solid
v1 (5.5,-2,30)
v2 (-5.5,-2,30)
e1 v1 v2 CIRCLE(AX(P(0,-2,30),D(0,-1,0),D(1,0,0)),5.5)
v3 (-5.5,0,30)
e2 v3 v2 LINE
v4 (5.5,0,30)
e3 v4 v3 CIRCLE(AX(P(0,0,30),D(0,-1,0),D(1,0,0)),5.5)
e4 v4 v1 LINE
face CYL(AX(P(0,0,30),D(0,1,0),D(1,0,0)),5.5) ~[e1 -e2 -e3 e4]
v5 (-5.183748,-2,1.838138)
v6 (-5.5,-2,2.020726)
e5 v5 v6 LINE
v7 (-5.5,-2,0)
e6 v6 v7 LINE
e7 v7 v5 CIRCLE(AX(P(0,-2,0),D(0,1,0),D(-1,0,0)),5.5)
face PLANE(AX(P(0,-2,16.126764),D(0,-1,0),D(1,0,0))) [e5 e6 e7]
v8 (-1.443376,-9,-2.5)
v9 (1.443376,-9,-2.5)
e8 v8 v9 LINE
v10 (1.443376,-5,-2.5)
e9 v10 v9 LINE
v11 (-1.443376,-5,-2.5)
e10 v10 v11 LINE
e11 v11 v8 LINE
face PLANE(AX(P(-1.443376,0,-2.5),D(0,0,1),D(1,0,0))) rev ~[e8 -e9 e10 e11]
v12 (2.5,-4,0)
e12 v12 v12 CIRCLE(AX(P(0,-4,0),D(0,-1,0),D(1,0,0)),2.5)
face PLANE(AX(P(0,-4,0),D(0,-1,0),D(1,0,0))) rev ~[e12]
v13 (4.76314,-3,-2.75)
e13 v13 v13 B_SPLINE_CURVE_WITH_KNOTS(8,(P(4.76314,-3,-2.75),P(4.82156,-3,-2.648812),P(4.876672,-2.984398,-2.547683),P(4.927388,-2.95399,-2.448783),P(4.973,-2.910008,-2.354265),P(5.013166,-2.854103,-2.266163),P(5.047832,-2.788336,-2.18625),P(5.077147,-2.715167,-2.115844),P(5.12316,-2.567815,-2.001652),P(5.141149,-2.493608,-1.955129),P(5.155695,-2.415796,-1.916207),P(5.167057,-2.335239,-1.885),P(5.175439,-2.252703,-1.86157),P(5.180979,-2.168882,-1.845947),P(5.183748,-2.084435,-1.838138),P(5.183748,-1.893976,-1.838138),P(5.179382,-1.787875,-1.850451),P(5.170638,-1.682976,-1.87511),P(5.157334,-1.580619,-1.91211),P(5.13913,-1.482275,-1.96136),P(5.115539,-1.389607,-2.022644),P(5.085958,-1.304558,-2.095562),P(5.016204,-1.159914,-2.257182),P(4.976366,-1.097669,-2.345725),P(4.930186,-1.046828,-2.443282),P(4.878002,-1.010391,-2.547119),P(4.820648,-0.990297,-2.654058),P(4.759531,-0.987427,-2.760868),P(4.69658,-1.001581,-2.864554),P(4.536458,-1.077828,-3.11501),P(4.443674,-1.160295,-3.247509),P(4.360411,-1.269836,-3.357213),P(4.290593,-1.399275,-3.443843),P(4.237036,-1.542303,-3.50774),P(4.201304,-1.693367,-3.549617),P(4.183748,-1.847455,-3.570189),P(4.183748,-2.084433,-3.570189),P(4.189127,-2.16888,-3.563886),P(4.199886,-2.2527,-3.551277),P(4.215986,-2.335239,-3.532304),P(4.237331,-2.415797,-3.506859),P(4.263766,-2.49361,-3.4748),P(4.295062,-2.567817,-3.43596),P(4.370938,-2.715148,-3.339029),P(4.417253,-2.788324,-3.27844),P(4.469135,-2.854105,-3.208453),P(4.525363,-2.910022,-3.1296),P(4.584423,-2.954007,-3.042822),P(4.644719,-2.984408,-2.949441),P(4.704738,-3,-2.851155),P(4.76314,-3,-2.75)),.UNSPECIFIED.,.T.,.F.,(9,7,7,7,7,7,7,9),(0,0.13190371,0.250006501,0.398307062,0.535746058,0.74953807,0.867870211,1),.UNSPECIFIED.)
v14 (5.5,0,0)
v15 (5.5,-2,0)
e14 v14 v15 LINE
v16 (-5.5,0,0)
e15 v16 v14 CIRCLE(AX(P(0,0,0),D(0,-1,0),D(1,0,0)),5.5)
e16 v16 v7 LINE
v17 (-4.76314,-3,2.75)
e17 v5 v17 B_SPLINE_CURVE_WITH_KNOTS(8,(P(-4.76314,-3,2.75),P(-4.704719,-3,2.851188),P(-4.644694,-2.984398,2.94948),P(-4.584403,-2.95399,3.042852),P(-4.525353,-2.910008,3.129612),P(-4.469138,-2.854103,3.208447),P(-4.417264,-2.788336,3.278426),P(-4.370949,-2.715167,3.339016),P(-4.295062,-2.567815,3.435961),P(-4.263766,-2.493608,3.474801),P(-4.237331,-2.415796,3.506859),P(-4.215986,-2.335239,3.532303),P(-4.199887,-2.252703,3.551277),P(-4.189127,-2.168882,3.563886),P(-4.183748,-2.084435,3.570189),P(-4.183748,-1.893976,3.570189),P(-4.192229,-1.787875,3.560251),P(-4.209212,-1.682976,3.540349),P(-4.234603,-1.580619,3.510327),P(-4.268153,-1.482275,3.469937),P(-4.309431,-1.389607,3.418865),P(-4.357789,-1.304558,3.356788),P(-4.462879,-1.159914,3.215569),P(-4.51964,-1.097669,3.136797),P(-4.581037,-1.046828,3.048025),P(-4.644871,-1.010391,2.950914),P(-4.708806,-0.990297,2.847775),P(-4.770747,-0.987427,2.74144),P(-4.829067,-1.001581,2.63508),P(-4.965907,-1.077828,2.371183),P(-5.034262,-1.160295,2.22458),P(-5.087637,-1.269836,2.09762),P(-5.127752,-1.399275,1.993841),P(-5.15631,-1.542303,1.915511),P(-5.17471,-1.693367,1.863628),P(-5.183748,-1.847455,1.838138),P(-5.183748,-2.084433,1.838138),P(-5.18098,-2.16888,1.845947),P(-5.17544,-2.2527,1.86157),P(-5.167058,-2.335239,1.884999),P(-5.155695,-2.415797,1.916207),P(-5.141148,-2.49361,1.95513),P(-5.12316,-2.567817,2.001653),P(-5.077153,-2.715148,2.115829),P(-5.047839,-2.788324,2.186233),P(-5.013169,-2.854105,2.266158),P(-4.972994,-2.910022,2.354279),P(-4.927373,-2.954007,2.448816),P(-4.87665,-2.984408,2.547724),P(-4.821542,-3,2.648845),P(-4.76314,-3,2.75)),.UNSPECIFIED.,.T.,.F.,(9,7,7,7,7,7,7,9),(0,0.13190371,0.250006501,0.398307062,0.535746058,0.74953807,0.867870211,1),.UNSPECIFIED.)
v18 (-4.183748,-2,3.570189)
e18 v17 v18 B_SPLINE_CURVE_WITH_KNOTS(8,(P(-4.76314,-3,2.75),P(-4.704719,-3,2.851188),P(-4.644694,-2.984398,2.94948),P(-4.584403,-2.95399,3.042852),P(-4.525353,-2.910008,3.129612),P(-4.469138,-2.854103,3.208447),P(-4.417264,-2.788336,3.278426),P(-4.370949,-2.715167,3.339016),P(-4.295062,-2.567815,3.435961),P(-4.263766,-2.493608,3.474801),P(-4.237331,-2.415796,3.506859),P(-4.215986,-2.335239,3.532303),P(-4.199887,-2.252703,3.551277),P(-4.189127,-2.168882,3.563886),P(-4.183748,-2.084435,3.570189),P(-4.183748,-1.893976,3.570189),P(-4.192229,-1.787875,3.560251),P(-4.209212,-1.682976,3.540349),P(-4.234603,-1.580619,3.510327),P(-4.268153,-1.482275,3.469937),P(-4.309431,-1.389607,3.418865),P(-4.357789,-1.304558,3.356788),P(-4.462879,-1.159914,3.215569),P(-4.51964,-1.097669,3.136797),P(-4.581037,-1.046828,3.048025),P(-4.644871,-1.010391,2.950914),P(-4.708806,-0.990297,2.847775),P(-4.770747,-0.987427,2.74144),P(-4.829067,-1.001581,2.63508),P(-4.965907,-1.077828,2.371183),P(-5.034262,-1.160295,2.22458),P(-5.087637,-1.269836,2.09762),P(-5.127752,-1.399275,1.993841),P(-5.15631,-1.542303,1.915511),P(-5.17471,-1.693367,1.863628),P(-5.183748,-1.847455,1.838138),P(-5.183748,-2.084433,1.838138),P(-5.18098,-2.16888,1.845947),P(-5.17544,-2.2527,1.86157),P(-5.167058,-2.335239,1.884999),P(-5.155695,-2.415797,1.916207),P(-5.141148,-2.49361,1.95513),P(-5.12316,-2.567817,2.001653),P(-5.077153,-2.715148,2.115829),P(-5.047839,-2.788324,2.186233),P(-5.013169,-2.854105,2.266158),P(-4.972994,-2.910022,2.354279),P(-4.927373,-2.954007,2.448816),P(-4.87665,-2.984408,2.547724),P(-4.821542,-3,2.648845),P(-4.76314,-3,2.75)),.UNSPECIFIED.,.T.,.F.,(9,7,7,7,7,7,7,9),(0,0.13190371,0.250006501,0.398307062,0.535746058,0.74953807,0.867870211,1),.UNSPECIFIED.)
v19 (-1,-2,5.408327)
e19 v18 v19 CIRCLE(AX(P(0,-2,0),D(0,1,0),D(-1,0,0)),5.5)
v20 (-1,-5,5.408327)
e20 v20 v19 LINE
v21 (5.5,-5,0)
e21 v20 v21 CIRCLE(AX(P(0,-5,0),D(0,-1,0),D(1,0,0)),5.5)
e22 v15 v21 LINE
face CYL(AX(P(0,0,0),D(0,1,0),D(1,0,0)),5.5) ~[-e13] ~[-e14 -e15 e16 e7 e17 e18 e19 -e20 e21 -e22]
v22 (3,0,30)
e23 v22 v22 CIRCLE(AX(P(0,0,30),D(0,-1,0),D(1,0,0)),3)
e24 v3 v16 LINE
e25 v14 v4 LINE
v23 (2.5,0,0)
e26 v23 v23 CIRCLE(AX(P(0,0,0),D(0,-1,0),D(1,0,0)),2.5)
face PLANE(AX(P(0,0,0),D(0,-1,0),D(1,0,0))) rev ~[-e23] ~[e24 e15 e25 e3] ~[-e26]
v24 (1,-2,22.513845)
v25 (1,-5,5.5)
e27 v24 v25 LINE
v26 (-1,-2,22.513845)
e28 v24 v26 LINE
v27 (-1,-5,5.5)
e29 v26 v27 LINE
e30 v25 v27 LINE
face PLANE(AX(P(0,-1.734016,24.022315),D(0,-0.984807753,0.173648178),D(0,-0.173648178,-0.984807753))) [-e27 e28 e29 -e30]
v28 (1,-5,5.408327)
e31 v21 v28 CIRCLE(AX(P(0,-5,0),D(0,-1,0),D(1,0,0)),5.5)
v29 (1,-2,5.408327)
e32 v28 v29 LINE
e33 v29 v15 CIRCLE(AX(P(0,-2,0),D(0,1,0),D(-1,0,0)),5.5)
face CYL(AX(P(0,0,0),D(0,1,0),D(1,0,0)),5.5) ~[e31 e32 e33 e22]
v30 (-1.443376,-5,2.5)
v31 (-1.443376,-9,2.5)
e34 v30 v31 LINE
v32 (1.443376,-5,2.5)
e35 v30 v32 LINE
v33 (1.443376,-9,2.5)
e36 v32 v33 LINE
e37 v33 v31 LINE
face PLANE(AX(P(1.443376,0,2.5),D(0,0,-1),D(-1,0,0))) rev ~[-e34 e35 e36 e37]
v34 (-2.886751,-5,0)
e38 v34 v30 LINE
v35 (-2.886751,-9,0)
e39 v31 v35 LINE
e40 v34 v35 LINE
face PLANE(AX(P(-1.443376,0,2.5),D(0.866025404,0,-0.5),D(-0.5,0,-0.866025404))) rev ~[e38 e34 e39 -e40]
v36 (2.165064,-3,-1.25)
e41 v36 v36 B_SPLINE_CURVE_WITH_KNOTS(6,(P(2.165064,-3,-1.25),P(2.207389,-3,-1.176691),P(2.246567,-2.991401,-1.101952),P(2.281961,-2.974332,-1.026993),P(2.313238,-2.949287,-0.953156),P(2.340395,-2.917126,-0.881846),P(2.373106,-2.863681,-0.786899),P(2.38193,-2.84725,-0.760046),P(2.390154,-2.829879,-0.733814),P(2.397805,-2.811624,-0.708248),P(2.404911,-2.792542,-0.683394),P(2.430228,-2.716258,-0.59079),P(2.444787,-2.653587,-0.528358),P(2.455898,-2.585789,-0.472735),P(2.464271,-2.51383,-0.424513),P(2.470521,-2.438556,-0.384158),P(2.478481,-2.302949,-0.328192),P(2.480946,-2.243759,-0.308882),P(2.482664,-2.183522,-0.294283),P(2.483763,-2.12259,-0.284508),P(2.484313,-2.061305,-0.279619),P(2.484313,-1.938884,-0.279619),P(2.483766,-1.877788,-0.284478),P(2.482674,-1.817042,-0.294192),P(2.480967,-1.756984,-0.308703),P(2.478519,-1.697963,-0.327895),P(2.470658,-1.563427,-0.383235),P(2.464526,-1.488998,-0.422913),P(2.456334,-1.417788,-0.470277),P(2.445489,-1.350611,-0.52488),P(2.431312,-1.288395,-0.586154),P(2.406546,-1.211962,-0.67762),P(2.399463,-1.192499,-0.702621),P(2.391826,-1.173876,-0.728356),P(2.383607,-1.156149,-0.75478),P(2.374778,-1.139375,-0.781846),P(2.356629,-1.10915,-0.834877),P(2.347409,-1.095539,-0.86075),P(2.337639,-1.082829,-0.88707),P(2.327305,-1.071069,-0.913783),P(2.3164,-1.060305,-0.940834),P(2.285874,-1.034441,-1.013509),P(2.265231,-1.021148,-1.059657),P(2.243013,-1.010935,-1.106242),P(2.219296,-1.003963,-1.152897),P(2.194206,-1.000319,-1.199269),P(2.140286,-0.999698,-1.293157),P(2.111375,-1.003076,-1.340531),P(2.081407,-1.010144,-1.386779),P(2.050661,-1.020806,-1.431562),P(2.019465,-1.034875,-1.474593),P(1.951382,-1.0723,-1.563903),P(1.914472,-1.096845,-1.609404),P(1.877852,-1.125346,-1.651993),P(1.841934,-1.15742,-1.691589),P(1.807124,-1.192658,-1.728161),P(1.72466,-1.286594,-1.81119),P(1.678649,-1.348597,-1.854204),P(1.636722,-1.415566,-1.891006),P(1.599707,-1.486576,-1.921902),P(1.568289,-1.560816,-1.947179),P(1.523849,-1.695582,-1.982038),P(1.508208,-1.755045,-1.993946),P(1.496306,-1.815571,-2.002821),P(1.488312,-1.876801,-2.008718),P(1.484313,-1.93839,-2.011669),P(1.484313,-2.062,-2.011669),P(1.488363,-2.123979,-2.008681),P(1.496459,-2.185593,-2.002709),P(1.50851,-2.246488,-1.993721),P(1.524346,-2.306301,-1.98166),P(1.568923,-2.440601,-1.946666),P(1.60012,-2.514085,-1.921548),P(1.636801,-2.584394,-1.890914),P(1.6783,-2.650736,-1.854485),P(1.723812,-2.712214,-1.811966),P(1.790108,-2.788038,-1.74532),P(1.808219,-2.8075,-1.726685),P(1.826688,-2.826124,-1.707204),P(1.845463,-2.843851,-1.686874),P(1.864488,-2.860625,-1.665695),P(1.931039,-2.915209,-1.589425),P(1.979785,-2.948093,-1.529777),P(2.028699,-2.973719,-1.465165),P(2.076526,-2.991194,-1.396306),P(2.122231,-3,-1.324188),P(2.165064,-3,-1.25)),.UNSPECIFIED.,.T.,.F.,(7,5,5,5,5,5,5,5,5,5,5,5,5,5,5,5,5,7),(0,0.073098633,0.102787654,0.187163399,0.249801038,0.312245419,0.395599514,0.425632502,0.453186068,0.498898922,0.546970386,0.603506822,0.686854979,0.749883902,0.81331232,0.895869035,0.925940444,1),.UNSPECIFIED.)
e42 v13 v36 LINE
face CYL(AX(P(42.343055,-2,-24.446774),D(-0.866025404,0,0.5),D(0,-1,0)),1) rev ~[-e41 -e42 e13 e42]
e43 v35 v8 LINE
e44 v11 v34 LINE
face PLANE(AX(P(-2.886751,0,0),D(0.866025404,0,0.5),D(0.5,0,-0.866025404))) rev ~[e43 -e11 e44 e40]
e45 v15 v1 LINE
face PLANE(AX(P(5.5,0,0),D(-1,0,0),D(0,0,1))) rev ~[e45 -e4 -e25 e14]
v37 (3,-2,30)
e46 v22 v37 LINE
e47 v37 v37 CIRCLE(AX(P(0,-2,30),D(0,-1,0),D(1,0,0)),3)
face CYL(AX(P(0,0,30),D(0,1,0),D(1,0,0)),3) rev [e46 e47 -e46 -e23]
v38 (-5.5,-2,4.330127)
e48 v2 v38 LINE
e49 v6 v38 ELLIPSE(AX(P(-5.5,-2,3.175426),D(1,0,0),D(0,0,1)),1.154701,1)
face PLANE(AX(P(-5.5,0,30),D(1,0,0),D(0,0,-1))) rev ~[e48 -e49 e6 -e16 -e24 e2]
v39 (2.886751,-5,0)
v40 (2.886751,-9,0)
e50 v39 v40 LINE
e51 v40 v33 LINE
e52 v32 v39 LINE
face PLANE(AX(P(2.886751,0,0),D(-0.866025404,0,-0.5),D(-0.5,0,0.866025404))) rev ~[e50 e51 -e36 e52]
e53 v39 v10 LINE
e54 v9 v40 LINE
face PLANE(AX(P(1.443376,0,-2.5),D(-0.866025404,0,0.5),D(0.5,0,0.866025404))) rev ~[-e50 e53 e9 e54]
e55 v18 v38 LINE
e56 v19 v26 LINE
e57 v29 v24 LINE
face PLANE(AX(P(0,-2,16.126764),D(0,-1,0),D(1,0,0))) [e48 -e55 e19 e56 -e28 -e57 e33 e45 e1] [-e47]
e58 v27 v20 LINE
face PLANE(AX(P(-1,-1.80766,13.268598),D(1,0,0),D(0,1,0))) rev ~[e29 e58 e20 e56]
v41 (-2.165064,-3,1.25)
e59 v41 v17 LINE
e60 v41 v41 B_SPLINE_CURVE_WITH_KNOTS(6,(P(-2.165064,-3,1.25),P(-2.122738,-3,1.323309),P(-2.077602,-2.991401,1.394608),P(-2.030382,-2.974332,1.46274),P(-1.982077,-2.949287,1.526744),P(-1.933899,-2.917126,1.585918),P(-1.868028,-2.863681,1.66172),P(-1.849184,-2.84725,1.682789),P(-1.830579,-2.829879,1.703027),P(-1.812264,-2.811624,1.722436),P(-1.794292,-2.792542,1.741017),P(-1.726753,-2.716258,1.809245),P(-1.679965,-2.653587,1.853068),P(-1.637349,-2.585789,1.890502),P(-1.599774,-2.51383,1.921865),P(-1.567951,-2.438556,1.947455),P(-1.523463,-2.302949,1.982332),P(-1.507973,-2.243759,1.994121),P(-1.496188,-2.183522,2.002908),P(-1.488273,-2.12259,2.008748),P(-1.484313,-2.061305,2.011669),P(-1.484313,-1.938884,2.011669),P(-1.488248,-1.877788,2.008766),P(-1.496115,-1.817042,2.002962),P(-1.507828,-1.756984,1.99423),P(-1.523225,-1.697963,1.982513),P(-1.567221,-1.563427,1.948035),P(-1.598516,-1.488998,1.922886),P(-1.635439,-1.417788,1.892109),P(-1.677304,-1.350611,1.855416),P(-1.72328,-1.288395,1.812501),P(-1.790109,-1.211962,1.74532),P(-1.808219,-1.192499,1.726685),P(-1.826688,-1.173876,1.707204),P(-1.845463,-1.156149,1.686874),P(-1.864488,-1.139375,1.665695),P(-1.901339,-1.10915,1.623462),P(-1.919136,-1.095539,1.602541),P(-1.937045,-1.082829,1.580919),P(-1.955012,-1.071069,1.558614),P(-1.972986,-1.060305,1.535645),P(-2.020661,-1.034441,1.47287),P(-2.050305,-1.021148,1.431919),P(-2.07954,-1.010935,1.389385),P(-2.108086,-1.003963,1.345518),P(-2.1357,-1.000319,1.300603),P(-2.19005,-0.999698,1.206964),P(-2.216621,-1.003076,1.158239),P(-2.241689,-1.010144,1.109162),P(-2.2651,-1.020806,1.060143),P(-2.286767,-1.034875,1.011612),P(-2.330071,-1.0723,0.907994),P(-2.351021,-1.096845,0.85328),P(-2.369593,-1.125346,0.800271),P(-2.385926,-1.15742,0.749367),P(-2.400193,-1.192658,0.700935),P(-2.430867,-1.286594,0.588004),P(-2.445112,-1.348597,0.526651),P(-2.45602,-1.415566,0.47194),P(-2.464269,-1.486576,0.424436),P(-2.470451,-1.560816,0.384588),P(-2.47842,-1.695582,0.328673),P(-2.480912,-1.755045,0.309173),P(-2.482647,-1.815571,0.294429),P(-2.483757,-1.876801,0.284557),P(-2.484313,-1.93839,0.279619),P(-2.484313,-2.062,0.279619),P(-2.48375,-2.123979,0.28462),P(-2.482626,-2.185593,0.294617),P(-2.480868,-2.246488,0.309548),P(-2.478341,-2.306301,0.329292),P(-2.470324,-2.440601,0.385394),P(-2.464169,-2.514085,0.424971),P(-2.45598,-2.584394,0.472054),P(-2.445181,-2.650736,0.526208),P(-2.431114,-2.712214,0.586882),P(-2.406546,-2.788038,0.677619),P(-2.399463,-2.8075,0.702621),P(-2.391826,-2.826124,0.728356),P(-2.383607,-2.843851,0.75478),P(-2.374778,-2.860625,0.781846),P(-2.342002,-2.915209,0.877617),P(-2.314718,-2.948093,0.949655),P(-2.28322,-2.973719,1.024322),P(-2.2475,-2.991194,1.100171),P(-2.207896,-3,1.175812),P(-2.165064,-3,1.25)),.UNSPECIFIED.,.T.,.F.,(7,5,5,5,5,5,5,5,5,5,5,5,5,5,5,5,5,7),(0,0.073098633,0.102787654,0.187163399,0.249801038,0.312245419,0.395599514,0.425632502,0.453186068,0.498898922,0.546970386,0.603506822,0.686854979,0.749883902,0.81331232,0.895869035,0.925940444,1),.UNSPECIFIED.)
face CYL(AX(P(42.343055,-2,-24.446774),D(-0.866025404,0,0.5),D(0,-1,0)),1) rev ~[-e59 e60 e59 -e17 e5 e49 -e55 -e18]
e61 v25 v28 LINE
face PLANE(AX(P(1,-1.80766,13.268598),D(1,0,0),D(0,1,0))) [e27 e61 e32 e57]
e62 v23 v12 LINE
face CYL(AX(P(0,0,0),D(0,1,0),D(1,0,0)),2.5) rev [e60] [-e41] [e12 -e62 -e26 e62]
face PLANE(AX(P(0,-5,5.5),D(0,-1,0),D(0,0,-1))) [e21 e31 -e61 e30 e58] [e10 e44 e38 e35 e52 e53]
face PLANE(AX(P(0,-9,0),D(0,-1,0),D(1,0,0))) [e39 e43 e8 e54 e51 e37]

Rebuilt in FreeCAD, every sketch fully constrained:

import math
import FreeCAD as App
import Part
import Sketcher
from FreeCAD import Vector
Q = App.Units.Quantity


def add_polygon(sketch, points):
    """Adds a closed chain of lines whose ends are joined by coincident constraints."""
    first, n = sketch.GeometryCount, len(points)
    for a, b in zip(points, points[1:] + points[:1]):
        sketch.addGeometry(Part.LineSegment(App.Vector(*a, 0), App.Vector(*b, 0)), False)
    for i in range(n):
        sketch.addConstraint(Sketcher.Constraint("Coincident", first + i, 2, first + (i + 1) % n, 1))

doc = App.newDocument("Part")
body = doc.addObject("PartDesign::Body", "Body")

# Sketch on XZ plane
sketch1 = body.newObject("Sketcher::SketchObject", "Sketch")
sketch1.AttachmentSupport = (doc.getObject("XZ_Plane"), [""])
sketch1.MapMode = "FlatFace"
sketch1.addGeometry([
    Part.ArcOfCircle(Part.Circle(Vector(0, 0, 0), Vector(0, 0, 1), 5.5), math.radians(0), math.radians(180)),  # 0
    Part.LineSegment(Vector(5.5, 0, 0), Vector(5.5, 30, 0)),  # 1
    Part.ArcOfCircle(Part.Circle(Vector(0, 30, 0), Vector(0, 0, 1), 5.5), math.radians(0), math.radians(180)),  # 2
    Part.LineSegment(Vector(-5.5, 30, 0), Vector(-5.5, 0, 0)),  # 3
    Part.Circle(Vector(0, 30, 0), Vector(0, 0, 1), 3),  # 4
], False)
sketch1.addConstraint([
    Sketcher.Constraint("Tangent", 0, 1, 1, 1),
    Sketcher.Constraint("Tangent", 1, 2, 2, 1),
    Sketcher.Constraint("Tangent", 2, 2, 3, 1),
    Sketcher.Constraint("Tangent", 3, 2, 0, 2),
    Sketcher.Constraint("Vertical", 1),
    Sketcher.Constraint("Vertical", 3),
    Sketcher.Constraint("Coincident", 0, 3, -1, 1),
    Sketcher.Constraint("Coincident", 4, 3, 2, 3),
    Sketcher.Constraint("Diameter", 4, 6.0),
    Sketcher.Constraint("Radius", 0, 5.5),
    Sketcher.Constraint("DistanceY", 1, 1, 1, 2, 30.0),
])
pad1 = body.newObject("PartDesign::Pad", "Pad")
pad1.Profile = sketch1
pad1.Length = 2

# Sketch on XZ plane
sketch2 = body.newObject("Sketcher::SketchObject", "Sketch001")
sketch2.AttachmentSupport = (doc.getObject("XZ_Plane"), [""])
sketch2.MapMode = "FlatFace"
sketch2.addGeometry(Part.Circle(Vector(0, 0, 0), Vector(0, 0, 1), 5.5), False)  # 0
add_polygon(sketch2, [(1.4, 2.5), (2.9, 0), (1.4, -2.5), (-1.4, -2.5), (-2.9, 0), (-1.4, 2.5)])  # lines 1-6
sketch2.addConstraint([
    Sketcher.Constraint("Horizontal", 3),
    Sketcher.Constraint("Horizontal", 6),
    Sketcher.Constraint("Coincident", 0, 3, -1, 1),
    Sketcher.Constraint("Symmetric", 1, 2, 4, 2, -1, 1),
    Sketcher.Constraint("Symmetric", 2, 2, 5, 2, -1, 1),
    Sketcher.Constraint("PointOnObject", 1, 2, -1),
    Sketcher.Constraint("Parallel", 1, 4),
    Sketcher.Constraint("Vertical", 3, 2, 5, 2),
    Sketcher.Constraint("Diameter", 0, 11.0),
    Sketcher.Constraint("Angle", 1, Q("-60 deg")),
    Sketcher.Constraint("DistanceY", 3, 2, 5, 2, 5.0),
    Sketcher.Constraint("DistanceX", 3, 2, 3, 1, 2.886751),
])
pad2 = body.newObject("PartDesign::Pad", "Pad001")
pad2.Profile = sketch2
pad2.Length = 5

# Sketch on XZ plane
sketch3 = body.newObject("Sketcher::SketchObject", "Sketch002")
sketch3.AttachmentSupport = (doc.getObject("XZ_Plane"), [""])
sketch3.MapMode = "FlatFace"
add_polygon(sketch3, [(-1.4, -2.5), (1.4, -2.5), (2.9, 0), (1.4, 2.5), (-1.4, 2.5), (-2.9, 0)])  # lines 0-5
sketch3.addConstraint([
    Sketcher.Constraint("Horizontal", 0),
    Sketcher.Constraint("Horizontal", 3),
    Sketcher.Constraint("Symmetric", 0, 2, 3, 2, -1, 1),
    Sketcher.Constraint("Symmetric", 1, 2, 4, 2, -1, 1),
    Sketcher.Constraint("PointOnObject", 1, 2, -1),
    Sketcher.Constraint("Parallel", 2, 5),
    Sketcher.Constraint("Vertical", 0, 2, 2, 2),
    Sketcher.Constraint("Angle", 1, Q("60 deg")),
    Sketcher.Constraint("DistanceY", 0, 2, 2, 2, 5.0),
    Sketcher.Constraint("DistanceX", 0, 1, 0, 2, 2.886751),
])
pad3 = body.newObject("PartDesign::Pad", "Pad002")
pad3.Profile = sketch3
pad3.Length = 9

# Sketch on XZ plane
sketch4 = body.newObject("Sketcher::SketchObject", "Sketch003")
sketch4.AttachmentSupport = (doc.getObject("XZ_Plane"), [""])
sketch4.MapMode = "FlatFace"
sketch4.addGeometry(Part.Circle(Vector(0, 0, 0), Vector(0, 0, 1), 2.5), False)
sketch4.addConstraint([
    Sketcher.Constraint("Coincident", 0, 3, -1, 1),
    Sketcher.Constraint("Diameter", 0, 5.0),
])
pocket1 = body.newObject("PartDesign::Pocket", "Pocket")
pocket1.Profile = sketch4
pocket1.Length = 4
pocket1.Reversed = True

# Sketch on YZ plane
sketch5 = body.newObject("Sketcher::SketchObject", "Sketch004")
sketch5.AttachmentSupport = (doc.getObject("YZ_Plane"), [""])
sketch5.MapMode = "FlatFace"
add_polygon(sketch5, [(-5, 5.5), (-5, 3.9), (0, 3.9), (0, 23.9), (-1.7, 24)])  # lines 0-4
sketch5.addConstraint([
    Sketcher.Constraint("Vertical", 0),
    Sketcher.Constraint("Horizontal", 1),
    Sketcher.Constraint("Vertical", 2),
    Sketcher.Constraint("PointOnObject", 1, 2, -2),
    Sketcher.Constraint("DistanceX", 1, 1, 1, 2, 5.0),
    Sketcher.Constraint("Angle", 4, Q("-100 deg")),
    Sketcher.Constraint("DistanceY", -1, 1, 4, 2, 5.5),
    Sketcher.Constraint("DistanceY", 0, 2, 0, 1, 1.561169),
    Sketcher.Constraint("Distance", 4, 18.808052),
    Sketcher.Constraint("DistanceY", 2, 1, 2, 2, 19.992955),
])
pad4 = body.newObject("PartDesign::Pad", "Pad003")
pad4.Profile = sketch5
pad4.Length = 2
pad4.Midplane = True

# Sketch on an angled plane
sketch6 = body.newObject("Sketcher::SketchObject", "Sketch005")
sketch6.Placement = App.Placement(Vector(4.76314, 0, -2.75), App.Rotation(Vector(0, 1, 0), Vector(0.5, 0, 0.866025404), Vector(0.866025404, 0, -0.5), "ZXY"))
sketch6.addGeometry(Part.Circle(Vector(-2, 0, 0), Vector(0, 0, 1), 1), False)
sketch6.addConstraint([
    Sketcher.Constraint("PointOnObject", 0, 3, -1),
    Sketcher.Constraint("Diameter", 0, 2.0),
    Sketcher.Constraint("DistanceX", 0, 3, -1, 1, 2.0),
])
doc.recompute()
hole = body.newObject("PartDesign::Hole", "Hole")
hole.Profile = sketch6
hole.ThreadType = "None"
hole.Diameter = 2
hole.DepthType = "ThroughAll"

doc.recompute()
